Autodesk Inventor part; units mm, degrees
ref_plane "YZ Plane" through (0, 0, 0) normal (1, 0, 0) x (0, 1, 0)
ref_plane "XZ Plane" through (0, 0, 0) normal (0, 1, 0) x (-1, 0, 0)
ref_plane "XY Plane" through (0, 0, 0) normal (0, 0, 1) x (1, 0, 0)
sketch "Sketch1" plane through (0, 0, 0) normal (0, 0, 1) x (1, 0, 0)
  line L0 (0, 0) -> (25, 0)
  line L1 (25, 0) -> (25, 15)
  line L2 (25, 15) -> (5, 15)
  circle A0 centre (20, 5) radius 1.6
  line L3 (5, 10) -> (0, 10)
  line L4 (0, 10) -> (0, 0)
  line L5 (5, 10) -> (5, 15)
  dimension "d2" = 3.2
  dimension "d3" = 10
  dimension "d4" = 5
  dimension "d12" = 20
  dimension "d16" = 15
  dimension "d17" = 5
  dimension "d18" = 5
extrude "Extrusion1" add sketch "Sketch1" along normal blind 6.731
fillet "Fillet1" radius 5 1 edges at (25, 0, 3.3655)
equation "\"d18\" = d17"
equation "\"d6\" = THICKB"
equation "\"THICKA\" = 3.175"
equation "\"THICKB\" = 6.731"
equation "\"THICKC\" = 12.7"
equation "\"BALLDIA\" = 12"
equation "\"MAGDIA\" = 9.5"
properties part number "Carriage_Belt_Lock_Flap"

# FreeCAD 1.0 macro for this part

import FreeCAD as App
import Part
import Sketcher

V = App.Vector


def edges_at(feature, points):
    """Names of the edges that pass closest to the given points."""
    edges = feature.Shape.Edges
    near = lambda p: min(range(len(edges)), key=lambda i: edges[i].distToShape(Part.Vertex(*p))[0])
    return sorted({f"Edge{near(p) + 1}" for p in points})


def add_polygon(sketch, points):
    """Adds a closed chain of lines whose ends are joined by coincident constraints."""
    first, n = sketch.GeometryCount, len(points)
    for a, b in zip(points, points[1:] + points[:1]):
        sketch.addGeometry(Part.LineSegment(App.Vector(*a, 0), App.Vector(*b, 0)), False)
    for i in range(n):
        sketch.addConstraint(Sketcher.Constraint("Coincident", first + i, 2, first + (i + 1) % n, 1))

doc = App.newDocument("Part")
body = doc.addObject("PartDesign::Body", "Body")

# Sketch on XY plane
sketch1 = doc.addObject("Sketcher::SketchObject", "Sketch")
body.addObject(sketch1)
sketch1.AttachmentSupport = (doc.XY_Plane, [""])
sketch1.MapMode = "FlatFace"
add_polygon(sketch1, [(0, 10), (0, 0), (25, 0), (25, 15), (5, 15), (5, 10)])  # lines 0-5
sketch1.addGeometry(Part.Circle(V(20, 5, 0), V(0, 0, 1), 1.6), False)  # 6
sketch1.addConstraint(Sketcher.Constraint("Vertical", 0))
sketch1.addConstraint(Sketcher.Constraint("Horizontal", 1))
sketch1.addConstraint(Sketcher.Constraint("Vertical", 2))
sketch1.addConstraint(Sketcher.Constraint("Horizontal", 3))
sketch1.addConstraint(Sketcher.Constraint("Vertical", 4))
sketch1.addConstraint(Sketcher.Constraint("Horizontal", 5))
sketch1.addConstraint(Sketcher.Constraint("Coincident", 0, 2, -1, 1))
sketch1.addConstraint(Sketcher.Constraint("Equal", 5, 4))
sketch1.addConstraint(Sketcher.Constraint("Diameter", 6, 3.2))
sketch1.addConstraint(Sketcher.Constraint("DistanceX", 3, 2, 3, 1, 20.0))
sketch1.addConstraint(Sketcher.Constraint("DistanceX", 5, 2, 5, 1, 5.0))
sketch1.addConstraint(Sketcher.Constraint("DistanceY", 0, 2, 0, 1, 10.0))
sketch1.addConstraint(Sketcher.Constraint("DistanceX", -1, 1, 6, 3, 20.0))
sketch1.addConstraint(Sketcher.Constraint("DistanceY", -1, 1, 6, 3, 5.0))
pad1 = doc.addObject("PartDesign::Pad", "Pad")
body.addObject(pad1)
pad1.Profile = sketch1
pad1.Length = 6.731
doc.recompute()

fillet = doc.addObject("PartDesign::Fillet", "Fillet")
body.addObject(fillet)
fillet.Base = (pad1, edges_at(pad1, [(25, 0, 3.365)]))
fillet.Radius = 5

doc.recompute()
